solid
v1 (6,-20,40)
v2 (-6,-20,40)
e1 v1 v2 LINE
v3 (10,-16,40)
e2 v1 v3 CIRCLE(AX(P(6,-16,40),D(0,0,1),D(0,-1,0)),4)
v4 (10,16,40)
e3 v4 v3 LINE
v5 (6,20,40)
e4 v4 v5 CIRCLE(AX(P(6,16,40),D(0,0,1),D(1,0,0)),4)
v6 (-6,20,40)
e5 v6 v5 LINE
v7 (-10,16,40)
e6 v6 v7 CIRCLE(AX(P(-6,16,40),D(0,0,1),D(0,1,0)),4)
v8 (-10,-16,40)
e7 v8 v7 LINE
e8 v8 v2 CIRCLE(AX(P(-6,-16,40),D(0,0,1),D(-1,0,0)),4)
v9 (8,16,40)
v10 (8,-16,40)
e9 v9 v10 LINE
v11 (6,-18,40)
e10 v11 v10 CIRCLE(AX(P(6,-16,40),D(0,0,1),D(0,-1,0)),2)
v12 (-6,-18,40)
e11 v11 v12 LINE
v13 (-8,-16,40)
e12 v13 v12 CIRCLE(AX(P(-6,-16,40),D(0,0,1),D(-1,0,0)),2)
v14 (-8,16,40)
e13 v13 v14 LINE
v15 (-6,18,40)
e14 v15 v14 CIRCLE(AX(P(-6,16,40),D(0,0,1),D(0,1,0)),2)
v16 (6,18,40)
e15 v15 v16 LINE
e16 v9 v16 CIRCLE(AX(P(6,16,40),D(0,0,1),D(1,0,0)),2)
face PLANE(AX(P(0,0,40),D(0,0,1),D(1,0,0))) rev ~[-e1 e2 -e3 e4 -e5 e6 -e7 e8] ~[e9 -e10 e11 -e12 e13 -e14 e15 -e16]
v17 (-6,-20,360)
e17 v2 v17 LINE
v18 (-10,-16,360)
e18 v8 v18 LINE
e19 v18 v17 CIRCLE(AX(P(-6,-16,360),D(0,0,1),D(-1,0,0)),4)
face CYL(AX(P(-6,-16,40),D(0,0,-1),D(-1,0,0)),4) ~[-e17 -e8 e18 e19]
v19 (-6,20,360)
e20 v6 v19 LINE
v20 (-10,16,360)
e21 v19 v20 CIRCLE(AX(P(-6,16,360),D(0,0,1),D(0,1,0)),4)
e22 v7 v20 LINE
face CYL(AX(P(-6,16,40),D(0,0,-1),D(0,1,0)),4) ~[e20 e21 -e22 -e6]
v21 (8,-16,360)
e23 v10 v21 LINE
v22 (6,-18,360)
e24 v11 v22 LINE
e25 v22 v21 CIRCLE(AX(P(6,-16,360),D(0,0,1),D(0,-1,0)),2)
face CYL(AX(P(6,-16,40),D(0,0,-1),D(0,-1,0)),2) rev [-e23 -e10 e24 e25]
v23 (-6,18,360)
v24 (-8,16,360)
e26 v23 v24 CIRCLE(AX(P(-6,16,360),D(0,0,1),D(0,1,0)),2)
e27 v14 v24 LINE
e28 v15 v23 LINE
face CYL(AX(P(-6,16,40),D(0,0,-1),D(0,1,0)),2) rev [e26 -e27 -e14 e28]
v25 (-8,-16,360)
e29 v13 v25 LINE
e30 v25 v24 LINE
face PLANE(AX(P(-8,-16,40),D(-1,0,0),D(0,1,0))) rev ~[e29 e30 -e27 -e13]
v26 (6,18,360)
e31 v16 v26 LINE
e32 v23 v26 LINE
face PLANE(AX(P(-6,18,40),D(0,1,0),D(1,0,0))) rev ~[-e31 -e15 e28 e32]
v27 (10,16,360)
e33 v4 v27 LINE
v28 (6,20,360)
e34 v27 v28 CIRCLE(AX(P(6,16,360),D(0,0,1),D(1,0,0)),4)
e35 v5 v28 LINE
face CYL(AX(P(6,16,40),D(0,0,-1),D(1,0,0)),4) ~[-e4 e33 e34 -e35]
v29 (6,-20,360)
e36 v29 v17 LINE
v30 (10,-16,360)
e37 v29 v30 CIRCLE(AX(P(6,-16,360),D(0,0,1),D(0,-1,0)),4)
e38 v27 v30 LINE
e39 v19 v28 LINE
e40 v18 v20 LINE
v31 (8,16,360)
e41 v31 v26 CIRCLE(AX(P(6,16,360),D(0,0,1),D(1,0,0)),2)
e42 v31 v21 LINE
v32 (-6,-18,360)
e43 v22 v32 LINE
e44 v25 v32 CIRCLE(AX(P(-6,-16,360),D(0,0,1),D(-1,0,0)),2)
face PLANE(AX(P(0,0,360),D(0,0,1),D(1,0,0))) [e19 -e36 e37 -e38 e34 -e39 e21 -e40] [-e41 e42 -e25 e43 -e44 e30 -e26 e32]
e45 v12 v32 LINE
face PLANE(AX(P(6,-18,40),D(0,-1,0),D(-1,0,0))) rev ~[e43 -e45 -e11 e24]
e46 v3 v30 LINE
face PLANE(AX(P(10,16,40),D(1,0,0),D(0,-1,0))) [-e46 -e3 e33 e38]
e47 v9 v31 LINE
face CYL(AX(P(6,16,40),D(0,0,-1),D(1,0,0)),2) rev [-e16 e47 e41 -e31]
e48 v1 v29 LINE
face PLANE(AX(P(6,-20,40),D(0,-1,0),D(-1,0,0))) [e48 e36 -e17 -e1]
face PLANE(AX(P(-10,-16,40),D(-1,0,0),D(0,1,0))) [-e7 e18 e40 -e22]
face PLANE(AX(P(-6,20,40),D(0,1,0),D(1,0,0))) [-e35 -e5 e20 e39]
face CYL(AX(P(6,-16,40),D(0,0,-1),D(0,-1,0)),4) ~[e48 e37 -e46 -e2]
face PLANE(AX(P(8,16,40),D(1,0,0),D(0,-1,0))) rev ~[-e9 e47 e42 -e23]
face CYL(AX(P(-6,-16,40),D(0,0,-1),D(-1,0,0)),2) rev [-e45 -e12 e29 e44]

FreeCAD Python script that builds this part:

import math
import FreeCAD as App
import Part
import Sketcher
from FreeCAD import Vector

doc = App.newDocument("Part")
body = doc.addObject("PartDesign::Body", "Body")

sketch1 = doc.addObject("Sketcher::SketchObject", "Sketch")
body.addObject(sketch1)
sketch1.AttachmentSupport = (doc.XY_Plane, [""])
sketch1.MapMode = "FlatFace"
sketch1.AttachmentOffset = App.Placement(Vector(0, 0, 40), App.Rotation())
sketch1.addGeometry([
    Part.LineSegment(Vector(-10, 16, 0), Vector(-10, -16, 0)),
    Part.ArcOfCircle(Part.Circle(Vector(-6, -16, 0), Vector(0, 0, 1), 4), math.radians(180), math.radians(270)),
    Part.LineSegment(Vector(-6, -20, 0), Vector(6, -20, 0)),
    Part.ArcOfCircle(Part.Circle(Vector(6, -16, 0), Vector(0, 0, 1), 4), math.radians(-90), math.radians(0)),
    Part.LineSegment(Vector(10, -16, 0), Vector(10, 16, 0)),
    Part.ArcOfCircle(Part.Circle(Vector(6, 16, 0), Vector(0, 0, 1), 4), math.radians(0), math.radians(90)),
    Part.LineSegment(Vector(6, 20, 0), Vector(-6, 20, 0)),
    Part.ArcOfCircle(Part.Circle(Vector(-6, 16, 0), Vector(0, 0, 1), 4), math.radians(90), math.radians(180)),
    Part.ArcOfCircle(Part.Circle(Vector(-6, 16, 0), Vector(0, 0, 1), 2), math.radians(90), math.radians(180)),
    Part.LineSegment(Vector(-6, 18, 0), Vector(6, 18, 0)),
    Part.ArcOfCircle(Part.Circle(Vector(6, 16, 0), Vector(0, 0, 1), 2), math.radians(0), math.radians(90)),
    Part.LineSegment(Vector(8, 16, 0), Vector(8, -16, 0)),
    Part.ArcOfCircle(Part.Circle(Vector(6, -16, 0), Vector(0, 0, 1), 2), math.radians(-90), math.radians(0)),
    Part.LineSegment(Vector(6, -18, 0), Vector(-6, -18, 0)),
    Part.ArcOfCircle(Part.Circle(Vector(-6, -16, 0), Vector(0, 0, 1), 2), math.radians(180), math.radians(270)),
    Part.LineSegment(Vector(-8, -16, 0), Vector(-8, 16, 0)),
], False)
sketch1.addConstraint([
    Sketcher.Constraint("Tangent", 0, 2, 1, 1),
    Sketcher.Constraint("Tangent", 1, 2, 2, 1),
    Sketcher.Constraint("Tangent", 2, 2, 3, 1),
    Sketcher.Constraint("Tangent", 3, 2, 4, 1),
    Sketcher.Constraint("Tangent", 4, 2, 5, 1),
    Sketcher.Constraint("Tangent", 5, 2, 6, 1),
    Sketcher.Constraint("Tangent", 6, 2, 7, 1),
    Sketcher.Constraint("Tangent", 7, 2, 0, 1),
    Sketcher.Constraint("Tangent", 8, 1, 9, 1),
    Sketcher.Constraint("Tangent", 9, 2, 10, 2),
    Sketcher.Constraint("Tangent", 10, 1, 11, 1),
    Sketcher.Constraint("Tangent", 11, 2, 12, 2),
    Sketcher.Constraint("Tangent", 12, 1, 13, 1),
    Sketcher.Constraint("Tangent", 13, 2, 14, 2),
    Sketcher.Constraint("Tangent", 14, 1, 15, 1),
    Sketcher.Constraint("Tangent", 15, 2, 8, 2),
    Sketcher.Constraint("Vertical", 0),
    Sketcher.Constraint("Horizontal", 2),
    Sketcher.Constraint("Vertical", 4),
    Sketcher.Constraint("Horizontal", 6),
    Sketcher.Constraint("Horizontal", 9),
    Sketcher.Constraint("Vertical", 11),
    Sketcher.Constraint("Horizontal", 13),
    Sketcher.Constraint("Vertical", 15),
    Sketcher.Constraint("Coincident", 8, 3, 7, 3),
    Sketcher.Constraint("Coincident", 10, 3, 5, 3),
    Sketcher.Constraint("Coincident", 12, 3, 3, 3),
    Sketcher.Constraint("Equal", 1, 3),
    Sketcher.Constraint("Equal", 3, 5),
    Sketcher.Constraint("Equal", 5, 7),
    Sketcher.Constraint("Equal", 12, 14),
    Sketcher.Constraint("Symmetric", 1, 3, 5, 3, -1, 1),
    Sketcher.Constraint("Radius", 1, 4.0),
    Sketcher.Constraint("Radius", 8, 2.0),
    Sketcher.Constraint("DistanceX", 0, 2, -1, 1, 10.0),
    Sketcher.Constraint("DistanceY", 1, 2, -1, 1, 20.0),
])
pad1 = doc.addObject("PartDesign::Pad", "Pad")
body.addObject(pad1)
pad1.Profile = sketch1
pad1.Length = 320

doc.recompute()
